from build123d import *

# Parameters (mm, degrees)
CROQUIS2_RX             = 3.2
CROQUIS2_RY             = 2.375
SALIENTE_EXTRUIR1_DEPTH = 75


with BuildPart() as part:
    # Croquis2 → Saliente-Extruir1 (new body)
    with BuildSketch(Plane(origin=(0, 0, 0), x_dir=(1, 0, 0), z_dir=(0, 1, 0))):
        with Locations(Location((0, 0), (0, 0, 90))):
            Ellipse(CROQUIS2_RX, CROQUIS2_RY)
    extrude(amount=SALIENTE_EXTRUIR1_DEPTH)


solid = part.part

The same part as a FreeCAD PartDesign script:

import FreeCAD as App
import Part
import Sketcher

V = App.Vector

doc = App.newDocument("Part")
body = doc.addObject("PartDesign::Body", "Body")

sketch1 = doc.addObject("Sketcher::SketchObject", "Sketch")
body.addObject(sketch1)
sketch1.AttachmentSupport = (doc.XZ_Plane, [""])
sketch1.MapMode = "FlatFace"
sketch1.addGeometry(Part.Ellipse(V(0, -3.2, 0), V(2.375, 0, 0), V(0, 0, 0)), False)
sketch1.addConstraint(Sketcher.Constraint("Block", 0))
pad1 = doc.addObject("PartDesign::Pad", "Pad")
body.addObject(pad1)
pad1.Profile = sketch1
pad1.Length = 75
pad1.Reversed = True

doc.recompute()
